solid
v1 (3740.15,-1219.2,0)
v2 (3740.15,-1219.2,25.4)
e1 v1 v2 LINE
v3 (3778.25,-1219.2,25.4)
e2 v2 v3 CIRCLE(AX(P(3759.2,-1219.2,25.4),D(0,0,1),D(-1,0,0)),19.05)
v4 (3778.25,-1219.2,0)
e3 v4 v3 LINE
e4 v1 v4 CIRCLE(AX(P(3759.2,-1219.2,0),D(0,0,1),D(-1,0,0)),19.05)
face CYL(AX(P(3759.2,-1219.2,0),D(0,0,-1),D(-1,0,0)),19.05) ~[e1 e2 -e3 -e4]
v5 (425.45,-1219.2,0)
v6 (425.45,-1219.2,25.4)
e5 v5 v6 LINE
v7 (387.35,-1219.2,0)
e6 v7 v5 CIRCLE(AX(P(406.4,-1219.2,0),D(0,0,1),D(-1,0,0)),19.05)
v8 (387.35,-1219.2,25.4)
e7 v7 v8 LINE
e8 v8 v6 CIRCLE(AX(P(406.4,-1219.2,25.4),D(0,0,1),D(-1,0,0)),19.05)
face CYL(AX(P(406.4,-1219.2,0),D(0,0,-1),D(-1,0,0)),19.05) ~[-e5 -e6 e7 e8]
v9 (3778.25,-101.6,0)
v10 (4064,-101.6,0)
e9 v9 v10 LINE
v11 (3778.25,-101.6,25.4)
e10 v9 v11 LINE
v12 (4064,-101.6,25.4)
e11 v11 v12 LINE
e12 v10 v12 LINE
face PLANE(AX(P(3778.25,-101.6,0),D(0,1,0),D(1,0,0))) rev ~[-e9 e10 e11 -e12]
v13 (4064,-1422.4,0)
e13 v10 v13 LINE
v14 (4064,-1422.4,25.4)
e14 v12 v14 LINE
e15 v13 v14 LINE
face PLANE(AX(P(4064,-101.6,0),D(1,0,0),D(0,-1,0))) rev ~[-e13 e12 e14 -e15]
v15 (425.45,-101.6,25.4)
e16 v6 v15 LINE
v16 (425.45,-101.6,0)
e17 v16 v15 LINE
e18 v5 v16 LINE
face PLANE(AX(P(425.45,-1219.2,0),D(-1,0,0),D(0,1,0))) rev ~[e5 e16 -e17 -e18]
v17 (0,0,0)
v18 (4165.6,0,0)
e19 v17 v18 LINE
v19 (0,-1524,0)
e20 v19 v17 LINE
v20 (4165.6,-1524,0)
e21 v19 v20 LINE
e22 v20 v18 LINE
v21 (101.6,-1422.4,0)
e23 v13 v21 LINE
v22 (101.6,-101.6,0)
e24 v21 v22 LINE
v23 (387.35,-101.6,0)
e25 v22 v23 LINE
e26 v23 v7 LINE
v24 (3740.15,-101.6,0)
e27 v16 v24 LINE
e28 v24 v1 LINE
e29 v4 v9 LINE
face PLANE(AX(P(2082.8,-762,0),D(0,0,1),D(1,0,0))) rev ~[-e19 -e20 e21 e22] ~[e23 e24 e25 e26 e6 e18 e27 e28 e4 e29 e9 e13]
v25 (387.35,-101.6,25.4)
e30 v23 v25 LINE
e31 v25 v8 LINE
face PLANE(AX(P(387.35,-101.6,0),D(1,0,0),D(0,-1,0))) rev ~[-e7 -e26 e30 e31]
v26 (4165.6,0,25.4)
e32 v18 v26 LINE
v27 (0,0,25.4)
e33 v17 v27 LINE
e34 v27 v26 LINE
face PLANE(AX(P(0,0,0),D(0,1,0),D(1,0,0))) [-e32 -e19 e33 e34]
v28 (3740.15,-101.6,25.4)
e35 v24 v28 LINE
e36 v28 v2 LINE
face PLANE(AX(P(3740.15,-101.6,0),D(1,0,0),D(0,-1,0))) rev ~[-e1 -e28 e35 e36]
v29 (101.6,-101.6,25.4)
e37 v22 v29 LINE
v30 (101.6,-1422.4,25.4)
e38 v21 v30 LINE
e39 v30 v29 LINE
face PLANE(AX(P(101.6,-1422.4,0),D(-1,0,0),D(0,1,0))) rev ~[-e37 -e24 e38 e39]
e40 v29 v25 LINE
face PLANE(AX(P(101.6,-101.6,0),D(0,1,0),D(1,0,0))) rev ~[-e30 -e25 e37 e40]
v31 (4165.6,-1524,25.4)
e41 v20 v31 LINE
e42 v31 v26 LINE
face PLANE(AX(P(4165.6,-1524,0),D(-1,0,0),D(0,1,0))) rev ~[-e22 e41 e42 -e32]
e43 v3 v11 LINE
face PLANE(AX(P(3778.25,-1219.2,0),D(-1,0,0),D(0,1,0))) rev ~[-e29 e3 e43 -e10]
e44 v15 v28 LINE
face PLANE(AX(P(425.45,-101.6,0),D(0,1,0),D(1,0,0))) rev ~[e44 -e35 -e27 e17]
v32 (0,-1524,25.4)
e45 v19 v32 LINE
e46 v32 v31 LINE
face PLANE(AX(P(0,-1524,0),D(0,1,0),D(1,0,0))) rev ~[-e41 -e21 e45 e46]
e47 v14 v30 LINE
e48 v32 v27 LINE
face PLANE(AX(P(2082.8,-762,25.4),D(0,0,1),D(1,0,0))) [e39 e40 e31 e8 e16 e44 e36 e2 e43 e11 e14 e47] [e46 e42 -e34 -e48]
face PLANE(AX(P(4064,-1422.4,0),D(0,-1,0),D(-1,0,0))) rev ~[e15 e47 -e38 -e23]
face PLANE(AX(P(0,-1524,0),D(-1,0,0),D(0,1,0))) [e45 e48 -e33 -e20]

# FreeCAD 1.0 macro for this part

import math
import FreeCAD as App
import Part
import Sketcher
from FreeCAD import Vector
Q = App.Units.Quantity


def add_polygon(sketch, points):
    """Adds a closed chain of lines whose ends are joined by coincident constraints."""
    first, n = sketch.GeometryCount, len(points)
    for a, b in zip(points, points[1:] + points[:1]):
        sketch.addGeometry(Part.LineSegment(App.Vector(*a, 0), App.Vector(*b, 0)), False)
    for i in range(n):
        sketch.addConstraint(Sketcher.Constraint("Coincident", first + i, 2, first + (i + 1) % n, 1))

doc = App.newDocument("Part")
body = doc.addObject("PartDesign::Body", "Body")

# Sketch on XY plane
sketch1 = body.newObject("Sketcher::SketchObject", "Sketch")
sketch1.AttachmentSupport = (doc.getObject("XY_Plane"), [""])
sketch1.MapMode = "FlatFace"
add_polygon(sketch1, [(0, 0), (0, -1524), (4165.6, -1524), (4165.6, 0)])  # lines 0-3
sketch1.addGeometry(Part.LineSegment(Vector(4064, -1422.4, 0), Vector(101.6, -1422.4, 0)), False)  # 4
sketch1.addGeometry(Part.LineSegment(Vector(101.6, -1422.4, 0), Vector(101.6, -101.6, 0)), False)  # 5
sketch1.addGeometry(Part.LineSegment(Vector(101.6, -101.6, 0), Vector(387.35, -101.6, 0)), False)  # 6
sketch1.addGeometry(Part.LineSegment(Vector(387.35, -101.6, 0), Vector(387.35, -1219.2, 0)), False)  # 7
sketch1.addGeometry(Part.ArcOfCircle(Part.Circle(Vector(406.4, -1219.2, 0), Vector(0, 0, 1), 19.05), math.radians(180), math.radians(360)), False)  # 8
sketch1.addGeometry(Part.LineSegment(Vector(425.45, -1219.2, 0), Vector(425.45, -101.6, 0)), False)  # 9
sketch1.addGeometry(Part.LineSegment(Vector(425.45, -101.6, 0), Vector(3740.15, -101.6, 0)), False)  # 10
sketch1.addGeometry(Part.LineSegment(Vector(3740.15, -101.6, 0), Vector(3740.15, -1219.2, 0)), False)  # 11
sketch1.addGeometry(Part.ArcOfCircle(Part.Circle(Vector(3759.2, -1219.2, 0), Vector(0, 0, 1), 19.05), math.radians(180), math.radians(360)), False)  # 12
sketch1.addGeometry(Part.LineSegment(Vector(3778.25, -1219.2, 0), Vector(3778.25, -101.6, 0)), False)  # 13
sketch1.addGeometry(Part.LineSegment(Vector(3778.25, -101.6, 0), Vector(4064, -101.6, 0)), False)  # 14
sketch1.addGeometry(Part.LineSegment(Vector(4064, -101.6, 0), Vector(4064, -1422.4, 0)), False)  # 15
sketch1.addConstraint(Sketcher.Constraint("Coincident", 4, 2, 5, 1))
sketch1.addConstraint(Sketcher.Constraint("Coincident", 5, 2, 6, 1))
sketch1.addConstraint(Sketcher.Constraint("Coincident", 6, 2, 7, 1))
sketch1.addConstraint(Sketcher.Constraint("Tangent", 7, 2, 8, 1))
sketch1.addConstraint(Sketcher.Constraint("Tangent", 8, 2, 9, 1))
sketch1.addConstraint(Sketcher.Constraint("Coincident", 9, 2, 10, 1))
sketch1.addConstraint(Sketcher.Constraint("Coincident", 10, 2, 11, 1))
sketch1.addConstraint(Sketcher.Constraint("Tangent", 11, 2, 12, 1))
sketch1.addConstraint(Sketcher.Constraint("Tangent", 12, 2, 13, 1))
sketch1.addConstraint(Sketcher.Constraint("Coincident", 13, 2, 14, 1))
sketch1.addConstraint(Sketcher.Constraint("Coincident", 14, 2, 15, 1))
sketch1.addConstraint(Sketcher.Constraint("Coincident", 15, 2, 4, 1))
sketch1.addConstraint(Sketcher.Constraint("Vertical", 0))
sketch1.addConstraint(Sketcher.Constraint("Horizontal", 1))
sketch1.addConstraint(Sketcher.Constraint("Vertical", 2))
sketch1.addConstraint(Sketcher.Constraint("Horizontal", 3))
sketch1.addConstraint(Sketcher.Constraint("Horizontal", 4))
sketch1.addConstraint(Sketcher.Constraint("Vertical", 5))
sketch1.addConstraint(Sketcher.Constraint("Horizontal", 6))
sketch1.addConstraint(Sketcher.Constraint("Vertical", 7))
sketch1.addConstraint(Sketcher.Constraint("Vertical", 9))
sketch1.addConstraint(Sketcher.Constraint("Horizontal", 10))
sketch1.addConstraint(Sketcher.Constraint("Vertical", 11))
sketch1.addConstraint(Sketcher.Constraint("Vertical", 13))
sketch1.addConstraint(Sketcher.Constraint("Horizontal", 14))
sketch1.addConstraint(Sketcher.Constraint("Vertical", 15))
sketch1.addConstraint(Sketcher.Constraint("Coincident", 3, 2, -1, 1))
sketch1.addConstraint(Sketcher.Constraint("Equal", 8, 12))
sketch1.addConstraint(Sketcher.Constraint("Horizontal", 8, 3, 12, 3))
sketch1.addConstraint(Sketcher.Constraint("Horizontal", 6, 2, 9, 2))
sketch1.addConstraint(Sketcher.Constraint("Horizontal", 10, 2, 13, 2))
sketch1.addConstraint(Sketcher.Constraint("Equal", 6, 14))
sketch1.addConstraint(Sketcher.Constraint("DistanceX", 1, 1, 1, 2, Q("164 in")))
sketch1.addConstraint(Sketcher.Constraint("DistanceX", 4, 2, 4, 1, Q("156 in")))
sketch1.addConstraint(Sketcher.Constraint("DistanceY", 0, 2, 0, 1, Q("60 in")))
sketch1.addConstraint(Sketcher.Constraint("DistanceY", 5, 1, 5, 2, Q("52 in")))
sketch1.addConstraint(Sketcher.Constraint("DistanceY", 7, 2, 7, 1, Q("44 in")))
sketch1.addConstraint(Sketcher.Constraint("Radius", 8, Q("0.75 in")))
sketch1.addConstraint(Sketcher.Constraint("DistanceX", 10, 1, 10, 2, Q("130.5 in")))
sketch1.addConstraint(Sketcher.Constraint("DistanceX", -1, 1, 8, 3, Q("16 in")))
sketch1.addConstraint(Sketcher.Constraint("DistanceY", 8, 3, -1, 1, Q("48 in")))
pad1 = body.newObject("PartDesign::Pad", "Pad")
pad1.Profile = sketch1
pad1.Length = Q("1 in")

doc.recompute()
